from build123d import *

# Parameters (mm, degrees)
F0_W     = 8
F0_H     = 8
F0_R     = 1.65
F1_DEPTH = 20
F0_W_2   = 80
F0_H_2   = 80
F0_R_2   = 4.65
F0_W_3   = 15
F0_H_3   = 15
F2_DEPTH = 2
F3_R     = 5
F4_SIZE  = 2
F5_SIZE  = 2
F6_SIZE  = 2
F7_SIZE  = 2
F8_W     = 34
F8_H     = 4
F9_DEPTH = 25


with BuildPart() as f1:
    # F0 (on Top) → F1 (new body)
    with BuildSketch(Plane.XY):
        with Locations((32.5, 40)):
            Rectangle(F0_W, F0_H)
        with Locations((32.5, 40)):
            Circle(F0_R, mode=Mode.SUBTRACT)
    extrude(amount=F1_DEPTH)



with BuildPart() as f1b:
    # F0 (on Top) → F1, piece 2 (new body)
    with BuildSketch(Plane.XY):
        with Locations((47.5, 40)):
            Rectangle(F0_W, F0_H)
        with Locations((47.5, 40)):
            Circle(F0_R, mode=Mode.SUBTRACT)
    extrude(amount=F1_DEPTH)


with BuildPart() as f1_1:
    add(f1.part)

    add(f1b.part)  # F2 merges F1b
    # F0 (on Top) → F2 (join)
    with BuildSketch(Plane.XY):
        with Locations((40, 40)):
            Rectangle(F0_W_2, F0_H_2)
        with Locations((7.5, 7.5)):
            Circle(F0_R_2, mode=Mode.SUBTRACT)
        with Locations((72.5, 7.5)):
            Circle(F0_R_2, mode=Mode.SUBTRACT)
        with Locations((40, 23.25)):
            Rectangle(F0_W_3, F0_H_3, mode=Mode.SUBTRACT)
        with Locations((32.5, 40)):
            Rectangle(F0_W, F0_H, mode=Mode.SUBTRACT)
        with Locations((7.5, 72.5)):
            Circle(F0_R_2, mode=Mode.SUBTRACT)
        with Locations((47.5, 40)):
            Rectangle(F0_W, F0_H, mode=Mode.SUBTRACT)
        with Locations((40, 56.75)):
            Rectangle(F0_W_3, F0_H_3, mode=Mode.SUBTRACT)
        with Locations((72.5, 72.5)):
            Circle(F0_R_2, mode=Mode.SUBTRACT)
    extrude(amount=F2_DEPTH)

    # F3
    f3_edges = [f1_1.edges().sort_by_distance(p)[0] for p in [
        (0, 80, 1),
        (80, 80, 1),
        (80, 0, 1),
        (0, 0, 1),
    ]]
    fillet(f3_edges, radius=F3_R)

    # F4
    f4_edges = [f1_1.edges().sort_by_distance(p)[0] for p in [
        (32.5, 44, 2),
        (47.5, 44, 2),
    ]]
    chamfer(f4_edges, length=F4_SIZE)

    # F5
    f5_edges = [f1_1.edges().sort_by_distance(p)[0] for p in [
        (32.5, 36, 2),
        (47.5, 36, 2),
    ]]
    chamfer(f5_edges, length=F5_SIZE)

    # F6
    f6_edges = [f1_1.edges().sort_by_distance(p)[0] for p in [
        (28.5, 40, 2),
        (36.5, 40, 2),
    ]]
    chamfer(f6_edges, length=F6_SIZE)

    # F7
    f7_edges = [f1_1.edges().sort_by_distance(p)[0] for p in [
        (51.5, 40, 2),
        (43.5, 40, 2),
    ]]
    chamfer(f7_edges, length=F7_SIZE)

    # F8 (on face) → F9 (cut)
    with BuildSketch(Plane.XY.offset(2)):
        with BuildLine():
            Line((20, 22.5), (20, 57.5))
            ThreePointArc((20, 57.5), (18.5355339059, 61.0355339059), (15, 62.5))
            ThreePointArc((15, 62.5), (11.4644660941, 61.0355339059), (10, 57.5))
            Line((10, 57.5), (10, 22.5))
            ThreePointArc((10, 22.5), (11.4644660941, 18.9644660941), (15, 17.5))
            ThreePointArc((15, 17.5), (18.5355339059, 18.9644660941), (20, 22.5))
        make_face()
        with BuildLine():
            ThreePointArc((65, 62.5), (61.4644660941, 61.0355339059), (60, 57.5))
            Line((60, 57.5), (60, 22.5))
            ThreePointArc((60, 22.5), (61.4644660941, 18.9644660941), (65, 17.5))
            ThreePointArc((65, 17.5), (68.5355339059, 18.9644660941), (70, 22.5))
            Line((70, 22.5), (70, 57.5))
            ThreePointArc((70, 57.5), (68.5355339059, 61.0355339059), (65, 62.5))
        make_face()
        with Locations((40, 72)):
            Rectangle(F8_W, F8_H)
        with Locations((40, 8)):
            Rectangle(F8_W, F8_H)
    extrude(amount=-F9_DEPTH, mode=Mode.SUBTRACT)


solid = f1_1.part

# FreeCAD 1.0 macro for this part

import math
import FreeCAD as App
import Part
import Sketcher
Q = App.Units.Quantity


def edges_at(feature, points):
    """Names of the edges that pass closest to the given points."""
    edges = feature.Shape.Edges
    near = lambda p: min(range(len(edges)), key=lambda i: edges[i].distToShape(Part.Vertex(*p))[0])
    return sorted({f"Edge{near(p) + 1}" for p in points})

doc = App.newDocument("Part")
body = doc.addObject("PartDesign::Body", "Body")

# Sketch on XY plane
sketch1 = doc.addObject("Sketcher::SketchObject", "Sketch")
body.addObject(sketch1)
sketch1.AttachmentSupport = (doc.XY_Plane, [""])
sketch1.MapMode = "FlatFace"
sketch1.addGeometry([
    Part.LineSegment(App.Vector(28.5, 44, 0), App.Vector(28.5, 36, 0)),  # 0
    Part.LineSegment(App.Vector(28.5, 36, 0), App.Vector(36.5, 36, 0)),  # 1
    Part.LineSegment(App.Vector(36.5, 36, 0), App.Vector(36.5, 44, 0)),  # 2
    Part.LineSegment(App.Vector(36.5, 44, 0), App.Vector(28.5, 44, 0)),  # 3
    Part.Circle(App.Vector(32.5, 40, 0), App.Vector(0, 0, 1), 1.6),  # 4
], False)
sketch1.addConstraint([
    Sketcher.Constraint("Coincident", 0, 2, 1, 1),
    Sketcher.Constraint("Coincident", 1, 2, 2, 1),
    Sketcher.Constraint("Coincident", 2, 2, 3, 1),
    Sketcher.Constraint("Coincident", 3, 2, 0, 1),
    Sketcher.Constraint("Vertical", 0),
    Sketcher.Constraint("Horizontal", 1),
    Sketcher.Constraint("Vertical", 2),
    Sketcher.Constraint("Horizontal", 3),
    Sketcher.Constraint("Equal", 3, 0),
    Sketcher.Constraint("Diameter", 4, Q("3.3 mm")),
    Sketcher.Constraint("DistanceX", 1, 1, 1, 2, Q("8 mm")),
    Sketcher.Constraint("DistanceY", -1, 1, 4, 3, Q("40 mm")),
    Sketcher.Constraint("DistanceY", -1, 1, 0, 2, Q("36 mm")),
    Sketcher.Constraint("DistanceX", 0, 2, 4, 3, Q("4 mm")),
    Sketcher.Constraint("DistanceX", -1, 1, 4, 3, Q("32.5 mm")),
])
pad1 = doc.addObject("PartDesign::Pad", "Pad")
body.addObject(pad1)
pad1.Profile = sketch1
pad1.Length = 20
body2 = doc.addObject("PartDesign::Body", "Body001")

# Sketch on XY plane
sketch2 = doc.addObject("Sketcher::SketchObject", "Sketch001")
body2.addObject(sketch2)
sketch2.AttachmentSupport = (doc.getObject("XY_Plane001"), [""])
sketch2.MapMode = "FlatFace"
sketch2.addGeometry([
    Part.LineSegment(App.Vector(43.5, 44, 0), App.Vector(43.5, 36, 0)),  # 0
    Part.LineSegment(App.Vector(43.5, 36, 0), App.Vector(51.5, 36, 0)),  # 1
    Part.LineSegment(App.Vector(51.5, 36, 0), App.Vector(51.5, 44, 0)),  # 2
    Part.LineSegment(App.Vector(51.5, 44, 0), App.Vector(43.5, 44, 0)),  # 3
    Part.Circle(App.Vector(47.5, 40, 0), App.Vector(0, 0, 1), 1.6),  # 4
], False)
sketch2.addConstraint([
    Sketcher.Constraint("Coincident", 0, 2, 1, 1),
    Sketcher.Constraint("Coincident", 1, 2, 2, 1),
    Sketcher.Constraint("Coincident", 2, 2, 3, 1),
    Sketcher.Constraint("Coincident", 3, 2, 0, 1),
    Sketcher.Constraint("Vertical", 0),
    Sketcher.Constraint("Horizontal", 1),
    Sketcher.Constraint("Vertical", 2),
    Sketcher.Constraint("Horizontal", 3),
    Sketcher.Constraint("Equal", 3, 0),
    Sketcher.Constraint("Diameter", 4, Q("3.3 mm")),
    Sketcher.Constraint("DistanceX", 1, 1, 1, 2, Q("8 mm")),
    Sketcher.Constraint("DistanceY", -1, 1, 4, 3, Q("40 mm")),
    Sketcher.Constraint("DistanceY", -1, 1, 0, 2, Q("36 mm")),
    Sketcher.Constraint("DistanceX", 0, 2, 4, 3, Q("4 mm")),
    Sketcher.Constraint("DistanceX", -1, 1, 4, 3, Q("47.5 mm")),
])
pad2 = doc.addObject("PartDesign::Pad", "Pad001")
body2.addObject(pad2)
pad2.Profile = sketch2
pad2.Length = 20
body.AllowCompound = True
doc.recompute()

boolean = doc.addObject("PartDesign::Boolean", "Boolean")
body.addObject(boolean)
boolean.Type = "Fuse"
boolean.addObjects([body2])

# Sketch on XY plane
sketch3 = doc.addObject("Sketcher::SketchObject", "Sketch002")
body.addObject(sketch3)
sketch3.AttachmentSupport = (doc.XY_Plane, [""])
sketch3.MapMode = "FlatFace"
sketch3.addGeometry([
    Part.LineSegment(App.Vector(0, 80, 0), App.Vector(0, 0, 0)),  # 0
    Part.LineSegment(App.Vector(0, 0, 0), App.Vector(80, 0, 0)),  # 1
    Part.LineSegment(App.Vector(80, 0, 0), App.Vector(80, 80, 0)),  # 2
    Part.LineSegment(App.Vector(80, 80, 0), App.Vector(0, 80, 0)),  # 3
    Part.Circle(App.Vector(7.5, 7.5, 0), App.Vector(0, 0, 1), 4.7),  # 4
    Part.Circle(App.Vector(72.5, 7.5, 0), App.Vector(0, 0, 1), 4.7),  # 5
    Part.LineSegment(App.Vector(47.5, 15.8, 0), App.Vector(32.5, 15.8, 0)),  # 6
    Part.LineSegment(App.Vector(32.5, 15.8, 0), App.Vector(32.5, 30.8, 0)),  # 7
    Part.LineSegment(App.Vector(32.5, 30.8, 0), App.Vector(47.5, 30.8, 0)),  # 8
    Part.LineSegment(App.Vector(47.5, 30.8, 0), App.Vector(47.5, 15.8, 0)),  # 9
    Part.LineSegment(App.Vector(36.5, 36, 0), App.Vector(28.5, 36, 0)),  # 10
    Part.LineSegment(App.Vector(28.5, 36, 0), App.Vector(28.5, 44, 0)),  # 11
    Part.LineSegment(App.Vector(28.5, 44, 0), App.Vector(36.5, 44, 0)),  # 12
    Part.LineSegment(App.Vector(36.5, 44, 0), App.Vector(36.5, 36, 0)),  # 13
    Part.Circle(App.Vector(7.5, 72.5, 0), App.Vector(0, 0, 1), 4.7),  # 14
    Part.LineSegment(App.Vector(51.5, 36, 0), App.Vector(43.5, 36, 0)),  # 15
    Part.LineSegment(App.Vector(43.5, 36, 0), App.Vector(43.5, 44, 0)),  # 16
    Part.LineSegment(App.Vector(43.5, 44, 0), App.Vector(51.5, 44, 0)),  # 17
    Part.LineSegment(App.Vector(51.5, 44, 0), App.Vector(51.5, 36, 0)),  # 18
    Part.LineSegment(App.Vector(47.5, 49.2, 0), App.Vector(32.5, 49.2, 0)),  # 19
    Part.LineSegment(App.Vector(32.5, 49.2, 0), App.Vector(32.5, 64.2, 0)),  # 20
    Part.LineSegment(App.Vector(32.5, 64.2, 0), App.Vector(47.5, 64.2, 0)),  # 21
    Part.LineSegment(App.Vector(47.5, 64.2, 0), App.Vector(47.5, 49.2, 0)),  # 22
    Part.Circle(App.Vector(72.5, 72.5, 0), App.Vector(0, 0, 1), 4.7),  # 23
], False)
sketch3.addConstraint([
    Sketcher.Constraint("Coincident", 0, 2, 1, 1),
    Sketcher.Constraint("Coincident", 1, 2, 2, 1),
    Sketcher.Constraint("Coincident", 2, 2, 3, 1),
    Sketcher.Constraint("Coincident", 3, 2, 0, 1),
    Sketcher.Constraint("Coincident", 6, 2, 7, 1),
    Sketcher.Constraint("Coincident", 7, 2, 8, 1),
    Sketcher.Constraint("Coincident", 8, 2, 9, 1),
    Sketcher.Constraint("Coincident", 9, 2, 6, 1),
    Sketcher.Constraint("Coincident", 10, 2, 11, 1),
    Sketcher.Constraint("Coincident", 11, 2, 12, 1),
    Sketcher.Constraint("Coincident", 12, 2, 13, 1),
    Sketcher.Constraint("Coincident", 13, 2, 10, 1),
    Sketcher.Constraint("Coincident", 15, 2, 16, 1),
    Sketcher.Constraint("Coincident", 16, 2, 17, 1),
    Sketcher.Constraint("Coincident", 17, 2, 18, 1),
    Sketcher.Constraint("Coincident", 18, 2, 15, 1),
    Sketcher.Constraint("Coincident", 19, 2, 20, 1),
    Sketcher.Constraint("Coincident", 20, 2, 21, 1),
    Sketcher.Constraint("Coincident", 21, 2, 22, 1),
    Sketcher.Constraint("Coincident", 22, 2, 19, 1),
    Sketcher.Constraint("Vertical", 0),
    Sketcher.Constraint("Horizontal", 1),
    Sketcher.Constraint("Vertical", 2),
    Sketcher.Constraint("Horizontal", 3),
    Sketcher.Constraint("Horizontal", 6),
    Sketcher.Constraint("Vertical", 7),
    Sketcher.Constraint("Horizontal", 8),
    Sketcher.Constraint("Vertical", 9),
    Sketcher.Constraint("Horizontal", 10),
    Sketcher.Constraint("Vertical", 11),
    Sketcher.Constraint("Horizontal", 12),
    Sketcher.Constraint("Vertical", 13),
    Sketcher.Constraint("Horizontal", 15),
    Sketcher.Constraint("Vertical", 16),
    Sketcher.Constraint("Horizontal", 17),
    Sketcher.Constraint("Vertical", 18),
    Sketcher.Constraint("Horizontal", 19),
    Sketcher.Constraint("Vertical", 20),
    Sketcher.Constraint("Horizontal", 21),
    Sketcher.Constraint("Vertical", 22),
    Sketcher.Constraint("Coincident", 0, 2, -1, 1),
    Sketcher.Constraint("Equal", 4, 5),
    Sketcher.Constraint("Equal", 5, 14),
    Sketcher.Constraint("Equal", 14, 23),
    Sketcher.Constraint("Horizontal", 4, 3, 5, 3),
    Sketcher.Constraint("Horizontal", 14, 3, 23, 3),
    Sketcher.Constraint("Horizontal", 13, 2, 15, 2),
    Sketcher.Constraint("Horizontal", 12, 2, 16, 2),
    Sketcher.Constraint("Vertical", 4, 3, 14, 3),
    Sketcher.Constraint("Vertical", 5, 3, 23, 3),
    Sketcher.Constraint("Vertical", 7, 2, 19, 2),
    Sketcher.Constraint("Vertical", 9, 2, 21, 2),
    Sketcher.Constraint("Equal", 12, 15),
    Sketcher.Constraint("Equal", 3, 0),
    Sketcher.Constraint("Equal", 21, 7),
    Sketcher.Constraint("Equal", 17, 11),
    Sketcher.Constraint("Equal", 9, 20),
    Sketcher.Constraint("Diameter", 4, Q("9.3 mm")),
    Sketcher.Constraint("DistanceX", 1, 1, 1, 2, Q("80 mm")),
    Sketcher.Constraint("DistanceX", 6, 2, 6, 1, Q("15 mm")),
    Sketcher.Constraint("DistanceX", 10, 2, 10, 1, Q("8 mm")),
    Sketcher.Constraint("DistanceY", -1, 1, 10, 2, Q("36 mm")),
    Sketcher.Constraint("DistanceX", 4, 3, 5, 3, Q("65 mm")),
    Sketcher.Constraint("DistanceY", 4, 3, 14, 3, Q("65 mm")),
    Sketcher.Constraint("DistanceX", 4, 3, 6, 2, Q("25 mm")),
    Sketcher.Constraint("DistanceX", 10, 2, 7, 2, Q("4 mm")),
    Sketcher.Constraint("DistanceX", 15, 2, 8, 2, Q("4 mm")),
    Sketcher.Constraint("DistanceX", -1, 1, 4, 3, Q("7.5 mm")),
    Sketcher.Constraint("DistanceY", -1, 1, 4, 3, Q("7.5 mm")),
    Sketcher.Constraint("DistanceY", -1, 1, 6, 2, Q("15.75 mm")),
    Sketcher.Constraint("DistanceY", -1, 1, 19, 2, Q("49.25 mm")),
])
pad3 = doc.addObject("PartDesign::Pad", "Pad002")
body.addObject(pad3)
pad3.Profile = sketch3
pad3.Length = 2
doc.recompute()

fillet = doc.addObject("PartDesign::Fillet", "Fillet")
body.addObject(fillet)
fillet.Base = (pad3, edges_at(pad3, [
    (0, 80, 1),
    (80, 80, 1),
    (80, 0, 1),
    (0, 0, 1),
]))
fillet.Radius = 5
doc.recompute()

chamfer = doc.addObject("PartDesign::Chamfer", "Chamfer")
body.addObject(chamfer)
chamfer.Base = (fillet, edges_at(fillet, [(32.5, 44, 2), (47.5, 44, 2)]))
chamfer.Size = 2
doc.recompute()

chamfer2 = doc.addObject("PartDesign::Chamfer", "Chamfer001")
body.addObject(chamfer2)
chamfer2.Base = (chamfer, edges_at(chamfer, [(32.5, 36, 2), (47.5, 36, 2)]))
chamfer2.Size = 2
doc.recompute()

chamfer3 = doc.addObject("PartDesign::Chamfer", "Chamfer002")
body.addObject(chamfer3)
chamfer3.Base = (chamfer2, edges_at(chamfer2, [(28.5, 40, 2), (36.5, 40, 2)]))
chamfer3.Size = 2
doc.recompute()

chamfer4 = doc.addObject("PartDesign::Chamfer", "Chamfer003")
body.addObject(chamfer4)
chamfer4.Base = (chamfer3, edges_at(chamfer3, [(51.5, 40, 2), (43.5, 40, 2)]))
chamfer4.Size = 2

# Sketch on XY plane
sketch4 = doc.addObject("Sketcher::SketchObject", "Sketch003")
body.addObject(sketch4)
sketch4.AttachmentSupport = (doc.XY_Plane, [""])
sketch4.MapMode = "FlatFace"
sketch4.AttachmentOffset = App.Placement(App.Vector(0, 0, 2), App.Rotation())
sketch4.addGeometry([
    Part.LineSegment(App.Vector(20, 22.5, 0), App.Vector(20, 57.5, 0)),  # 0
    Part.ArcOfCircle(Part.Circle(App.Vector(15, 57.5, 0), App.Vector(0, 0, 1), 5), math.radians(0), math.radians(90)),  # 1
    Part.ArcOfCircle(Part.Circle(App.Vector(15, 57.5, 0), App.Vector(0, 0, 1), 5), math.radians(90), math.radians(180)),  # 2
    Part.LineSegment(App.Vector(10, 57.5, 0), App.Vector(10, 22.5, 0)),  # 3
    Part.ArcOfCircle(Part.Circle(App.Vector(15, 22.5, 0), App.Vector(0, 0, 1), 5), math.radians(180), math.radians(270)),  # 4
    Part.ArcOfCircle(Part.Circle(App.Vector(15, 22.5, 0), App.Vector(0, 0, 1), 5), math.radians(-90), math.radians(0)),  # 5
    Part.ArcOfCircle(Part.Circle(App.Vector(65, 57.5, 0), App.Vector(0, 0, 1), 5), math.radians(90), math.radians(180)),  # 6
    Part.LineSegment(App.Vector(60, 57.5, 0), App.Vector(60, 22.5, 0)),  # 7
    Part.ArcOfCircle(Part.Circle(App.Vector(65, 22.5, 0), App.Vector(0, 0, 1), 5), math.radians(180), math.radians(270)),  # 8
    Part.ArcOfCircle(Part.Circle(App.Vector(65, 22.5, 0), App.Vector(0, 0, 1), 5), math.radians(-90), math.radians(0)),  # 9
    Part.LineSegment(App.Vector(70, 22.5, 0), App.Vector(70, 57.5, 0)),  # 10
    Part.ArcOfCircle(Part.Circle(App.Vector(65, 57.5, 0), App.Vector(0, 0, 1), 5), math.radians(0), math.radians(90)),  # 11
    Part.LineSegment(App.Vector(23, 74, 0), App.Vector(23, 70, 0)),  # 12
    Part.LineSegment(App.Vector(23, 70, 0), App.Vector(57, 70, 0)),  # 13
    Part.LineSegment(App.Vector(57, 70, 0), App.Vector(57, 74, 0)),  # 14
    Part.LineSegment(App.Vector(57, 74, 0), App.Vector(23, 74, 0)),  # 15
    Part.LineSegment(App.Vector(23, 10, 0), App.Vector(23, 6, 0)),  # 16
    Part.LineSegment(App.Vector(23, 6, 0), App.Vector(57, 6, 0)),  # 17
    Part.LineSegment(App.Vector(57, 6, 0), App.Vector(57, 10, 0)),  # 18
    Part.LineSegment(App.Vector(57, 10, 0), App.Vector(23, 10, 0)),  # 19
], False)
sketch4.addConstraint([
    Sketcher.Constraint("Tangent", 0, 2, 1, 1),
    Sketcher.Constraint("Tangent", 1, 2, 2, 1),
    Sketcher.Constraint("Tangent", 2, 2, 3, 1),
    Sketcher.Constraint("Tangent", 3, 2, 4, 1),
    Sketcher.Constraint("Tangent", 4, 2, 5, 1),
    Sketcher.Constraint("Tangent", 5, 2, 0, 1),
    Sketcher.Constraint("Tangent", 6, 2, 7, 1),
    Sketcher.Constraint("Tangent", 7, 2, 8, 1),
    Sketcher.Constraint("Tangent", 8, 2, 9, 1),
    Sketcher.Constraint("Tangent", 9, 2, 10, 1),
    Sketcher.Constraint("Tangent", 10, 2, 11, 1),
    Sketcher.Constraint("Tangent", 11, 2, 6, 1),
    Sketcher.Constraint("Coincident", 12, 2, 13, 1),
    Sketcher.Constraint("Coincident", 13, 2, 14, 1),
    Sketcher.Constraint("Coincident", 14, 2, 15, 1),
    Sketcher.Constraint("Coincident", 15, 2, 12, 1),
    Sketcher.Constraint("Coincident", 16, 2, 17, 1),
    Sketcher.Constraint("Coincident", 17, 2, 18, 1),
    Sketcher.Constraint("Coincident", 18, 2, 19, 1),
    Sketcher.Constraint("Coincident", 19, 2, 16, 1),
    Sketcher.Constraint("Vertical", 0),
    Sketcher.Constraint("Vertical", 3),
    Sketcher.Constraint("Vertical", 7),
    Sketcher.Constraint("Vertical", 10),
    Sketcher.Constraint("Vertical", 12),
    Sketcher.Constraint("Horizontal", 13),
    Sketcher.Constraint("Vertical", 14),
    Sketcher.Constraint("Horizontal", 15),
    Sketcher.Constraint("Vertical", 16),
    Sketcher.Constraint("Horizontal", 17),
    Sketcher.Constraint("Vertical", 18),
    Sketcher.Constraint("Horizontal", 19),
    Sketcher.Constraint("Equal", 1, 2),
    Sketcher.Constraint("Equal", 2, 4),
    Sketcher.Constraint("Equal", 5, 6),
    Sketcher.Constraint("Equal", 6, 8),
    Sketcher.Constraint("Equal", 8, 9),
    Sketcher.Constraint("Horizontal", 2, 3, 6, 3),
    Sketcher.Constraint("Horizontal", 5, 3, 8, 3),
    Sketcher.Constraint("Vertical", 5, 3, 1, 2),
    Sketcher.Constraint("Vertical", 1, 2, 4, 2),
    Sketcher.Constraint("Vertical", 11, 3, 8, 2),
    Sketcher.Constraint("Vertical", 8, 2, 11, 2),
    Sketcher.Constraint("Vertical", 15, 2, 16, 2),
    Sketcher.Constraint("Vertical", 14, 2, 17, 2),
    Sketcher.Constraint("Equal", 14, 16),
    Sketcher.Constraint("Radius", 1, Q("5 mm")),
    Sketcher.Constraint("DistanceX", 13, 1, 13, 2, Q("34 mm")),
    Sketcher.Constraint("DistanceY", 0, 1, 0, 2, Q("35 mm")),
    Sketcher.Constraint("DistanceY", 12, 2, 12, 1, Q("4 mm")),
    Sketcher.Constraint("DistanceX", -1, 1, 1, 3, Q("15 mm")),
    Sketcher.Constraint("DistanceX", -1, 1, 6, 3, Q("65 mm")),
    Sketcher.Constraint("DistanceX", -1, 1, 12, 2, Q("23 mm")),
    Sketcher.Constraint("DistanceY", -1, 1, 12, 2, Q("70 mm")),
    Sketcher.Constraint("DistanceY", -1, 1, 16, 2, Q("6 mm")),
    Sketcher.Constraint("DistanceY", -1, 1, 1, 3, Q("57.5 mm")),
])
pocket1 = doc.addObject("PartDesign::Pocket", "Pocket")
body.addObject(pocket1)
pocket1.Profile = sketch4
pocket1.Length = 25

doc.recompute()
